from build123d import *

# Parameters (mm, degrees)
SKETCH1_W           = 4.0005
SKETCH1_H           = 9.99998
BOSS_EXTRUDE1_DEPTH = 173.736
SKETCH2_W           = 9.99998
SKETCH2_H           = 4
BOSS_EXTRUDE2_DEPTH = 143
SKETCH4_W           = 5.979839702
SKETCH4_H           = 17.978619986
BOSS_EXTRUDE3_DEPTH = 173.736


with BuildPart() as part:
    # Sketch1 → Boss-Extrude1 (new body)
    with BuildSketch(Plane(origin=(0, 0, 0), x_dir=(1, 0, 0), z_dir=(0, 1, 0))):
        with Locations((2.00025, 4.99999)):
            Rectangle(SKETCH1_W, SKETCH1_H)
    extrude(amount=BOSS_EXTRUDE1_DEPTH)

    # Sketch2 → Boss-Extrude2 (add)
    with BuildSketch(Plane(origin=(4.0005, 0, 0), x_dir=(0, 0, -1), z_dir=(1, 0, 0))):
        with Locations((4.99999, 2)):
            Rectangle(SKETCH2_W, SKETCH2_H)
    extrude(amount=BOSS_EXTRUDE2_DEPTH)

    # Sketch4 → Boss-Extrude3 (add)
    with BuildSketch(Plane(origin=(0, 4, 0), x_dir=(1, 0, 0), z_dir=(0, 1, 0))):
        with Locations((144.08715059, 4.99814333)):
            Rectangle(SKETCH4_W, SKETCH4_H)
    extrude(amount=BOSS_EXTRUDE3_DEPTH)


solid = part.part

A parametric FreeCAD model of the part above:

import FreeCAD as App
import Part
import Sketcher

doc = App.newDocument("Part")
body = doc.addObject("PartDesign::Body", "Body")

sketch1 = body.newObject("Sketcher::SketchObject", "Sketch")
sketch1.AttachmentSupport = (doc.getObject("XZ_Plane"), [""])
sketch1.MapMode = "FlatFace"
sketch1.addGeometry([
    Part.LineSegment(App.Vector(0, -10, 0), App.Vector(0, 0, 0)),
    Part.LineSegment(App.Vector(0, 0, 0), App.Vector(4, 0, 0)),
    Part.LineSegment(App.Vector(4, 0, 0), App.Vector(4, -10, 0)),
    Part.LineSegment(App.Vector(4, -10, 0), App.Vector(0, -10, 0)),
], False)
sketch1.addConstraint([
    Sketcher.Constraint("Coincident", 0, 2, 1, 1),
    Sketcher.Constraint("Coincident", 1, 2, 2, 1),
    Sketcher.Constraint("Coincident", 2, 2, 3, 1),
    Sketcher.Constraint("Coincident", 3, 2, 0, 1),
    Sketcher.Constraint("Vertical", 0),
    Sketcher.Constraint("Horizontal", 1),
    Sketcher.Constraint("Vertical", 2),
    Sketcher.Constraint("Horizontal", 3),
    Sketcher.Constraint("Coincident", 0, 2, -1, 1),
    Sketcher.Constraint("DistanceX", 1, 1, 1, 2, 4.0005),
    Sketcher.Constraint("DistanceY", 0, 1, 0, 2, 9.99998),
])
pad1 = body.newObject("PartDesign::Pad", "Pad")
pad1.Profile = sketch1
pad1.Length = 173.736
pad1.Reversed = True

sketch2 = body.newObject("Sketcher::SketchObject", "Sketch001")
sketch2.AttachmentSupport = (doc.getObject("YZ_Plane"), [""])
sketch2.MapMode = "FlatFace"
sketch2.AttachmentOffset = App.Placement(App.Vector(0, 0, 4.0005), App.Rotation())
sketch2.addGeometry([
    Part.LineSegment(App.Vector(4, 0, 0), App.Vector(0, 0, 0)),
    Part.LineSegment(App.Vector(0, 0, 0), App.Vector(0, -10, 0)),
    Part.LineSegment(App.Vector(0, -10, 0), App.Vector(4, -10, 0)),
    Part.LineSegment(App.Vector(4, -10, 0), App.Vector(4, 0, 0)),
], False)
sketch2.addConstraint([
    Sketcher.Constraint("Coincident", 0, 2, 1, 1),
    Sketcher.Constraint("Coincident", 1, 2, 2, 1),
    Sketcher.Constraint("Coincident", 2, 2, 3, 1),
    Sketcher.Constraint("Coincident", 3, 2, 0, 1),
    Sketcher.Constraint("Horizontal", 0),
    Sketcher.Constraint("Vertical", 1),
    Sketcher.Constraint("Horizontal", 2),
    Sketcher.Constraint("Vertical", 3),
    Sketcher.Constraint("Coincident", 0, 2, -1, 1),
    Sketcher.Constraint("DistanceX", 0, 2, 0, 1, 4.0),
    Sketcher.Constraint("DistanceY", 1, 2, 1, 1, 9.99998),
])
pad2 = body.newObject("PartDesign::Pad", "Pad001")
pad2.Profile = sketch2
pad2.Length = 143

sketch3 = body.newObject("Sketcher::SketchObject", "Sketch002")
sketch3.AttachmentSupport = (doc.getObject("XZ_Plane"), [""])
sketch3.MapMode = "FlatFace"
sketch3.AttachmentOffset = App.Placement(App.Vector(0, 0, -4), App.Rotation())
sketch3.addGeometry([
    Part.LineSegment(App.Vector(141, -14, 0), App.Vector(141, 4, 0)),
    Part.LineSegment(App.Vector(141, 4, 0), App.Vector(147, 4, 0)),
    Part.LineSegment(App.Vector(147, 4, 0), App.Vector(147, -14, 0)),
    Part.LineSegment(App.Vector(147, -14, 0), App.Vector(141, -14, 0)),
], False)
sketch3.addConstraint([
    Sketcher.Constraint("Coincident", 0, 2, 1, 1),
    Sketcher.Constraint("Coincident", 1, 2, 2, 1),
    Sketcher.Constraint("Coincident", 2, 2, 3, 1),
    Sketcher.Constraint("Coincident", 3, 2, 0, 1),
    Sketcher.Constraint("Vertical", 0),
    Sketcher.Constraint("Horizontal", 1),
    Sketcher.Constraint("Vertical", 2),
    Sketcher.Constraint("Horizontal", 3),
    Sketcher.Constraint("DistanceX", 1, 1, 1, 2, 5.97984),
    Sketcher.Constraint("DistanceY", 0, 1, 0, 2, 17.97862),
    Sketcher.Constraint("DistanceX", -1, 1, 0, 2, 141.097231),
    Sketcher.Constraint("DistanceY", -1, 1, 0, 2, 3.991167),
])
pad3 = body.newObject("PartDesign::Pad", "Pad002")
pad3.Profile = sketch3
pad3.Length = 173.736
pad3.Reversed = True

doc.recompute()
